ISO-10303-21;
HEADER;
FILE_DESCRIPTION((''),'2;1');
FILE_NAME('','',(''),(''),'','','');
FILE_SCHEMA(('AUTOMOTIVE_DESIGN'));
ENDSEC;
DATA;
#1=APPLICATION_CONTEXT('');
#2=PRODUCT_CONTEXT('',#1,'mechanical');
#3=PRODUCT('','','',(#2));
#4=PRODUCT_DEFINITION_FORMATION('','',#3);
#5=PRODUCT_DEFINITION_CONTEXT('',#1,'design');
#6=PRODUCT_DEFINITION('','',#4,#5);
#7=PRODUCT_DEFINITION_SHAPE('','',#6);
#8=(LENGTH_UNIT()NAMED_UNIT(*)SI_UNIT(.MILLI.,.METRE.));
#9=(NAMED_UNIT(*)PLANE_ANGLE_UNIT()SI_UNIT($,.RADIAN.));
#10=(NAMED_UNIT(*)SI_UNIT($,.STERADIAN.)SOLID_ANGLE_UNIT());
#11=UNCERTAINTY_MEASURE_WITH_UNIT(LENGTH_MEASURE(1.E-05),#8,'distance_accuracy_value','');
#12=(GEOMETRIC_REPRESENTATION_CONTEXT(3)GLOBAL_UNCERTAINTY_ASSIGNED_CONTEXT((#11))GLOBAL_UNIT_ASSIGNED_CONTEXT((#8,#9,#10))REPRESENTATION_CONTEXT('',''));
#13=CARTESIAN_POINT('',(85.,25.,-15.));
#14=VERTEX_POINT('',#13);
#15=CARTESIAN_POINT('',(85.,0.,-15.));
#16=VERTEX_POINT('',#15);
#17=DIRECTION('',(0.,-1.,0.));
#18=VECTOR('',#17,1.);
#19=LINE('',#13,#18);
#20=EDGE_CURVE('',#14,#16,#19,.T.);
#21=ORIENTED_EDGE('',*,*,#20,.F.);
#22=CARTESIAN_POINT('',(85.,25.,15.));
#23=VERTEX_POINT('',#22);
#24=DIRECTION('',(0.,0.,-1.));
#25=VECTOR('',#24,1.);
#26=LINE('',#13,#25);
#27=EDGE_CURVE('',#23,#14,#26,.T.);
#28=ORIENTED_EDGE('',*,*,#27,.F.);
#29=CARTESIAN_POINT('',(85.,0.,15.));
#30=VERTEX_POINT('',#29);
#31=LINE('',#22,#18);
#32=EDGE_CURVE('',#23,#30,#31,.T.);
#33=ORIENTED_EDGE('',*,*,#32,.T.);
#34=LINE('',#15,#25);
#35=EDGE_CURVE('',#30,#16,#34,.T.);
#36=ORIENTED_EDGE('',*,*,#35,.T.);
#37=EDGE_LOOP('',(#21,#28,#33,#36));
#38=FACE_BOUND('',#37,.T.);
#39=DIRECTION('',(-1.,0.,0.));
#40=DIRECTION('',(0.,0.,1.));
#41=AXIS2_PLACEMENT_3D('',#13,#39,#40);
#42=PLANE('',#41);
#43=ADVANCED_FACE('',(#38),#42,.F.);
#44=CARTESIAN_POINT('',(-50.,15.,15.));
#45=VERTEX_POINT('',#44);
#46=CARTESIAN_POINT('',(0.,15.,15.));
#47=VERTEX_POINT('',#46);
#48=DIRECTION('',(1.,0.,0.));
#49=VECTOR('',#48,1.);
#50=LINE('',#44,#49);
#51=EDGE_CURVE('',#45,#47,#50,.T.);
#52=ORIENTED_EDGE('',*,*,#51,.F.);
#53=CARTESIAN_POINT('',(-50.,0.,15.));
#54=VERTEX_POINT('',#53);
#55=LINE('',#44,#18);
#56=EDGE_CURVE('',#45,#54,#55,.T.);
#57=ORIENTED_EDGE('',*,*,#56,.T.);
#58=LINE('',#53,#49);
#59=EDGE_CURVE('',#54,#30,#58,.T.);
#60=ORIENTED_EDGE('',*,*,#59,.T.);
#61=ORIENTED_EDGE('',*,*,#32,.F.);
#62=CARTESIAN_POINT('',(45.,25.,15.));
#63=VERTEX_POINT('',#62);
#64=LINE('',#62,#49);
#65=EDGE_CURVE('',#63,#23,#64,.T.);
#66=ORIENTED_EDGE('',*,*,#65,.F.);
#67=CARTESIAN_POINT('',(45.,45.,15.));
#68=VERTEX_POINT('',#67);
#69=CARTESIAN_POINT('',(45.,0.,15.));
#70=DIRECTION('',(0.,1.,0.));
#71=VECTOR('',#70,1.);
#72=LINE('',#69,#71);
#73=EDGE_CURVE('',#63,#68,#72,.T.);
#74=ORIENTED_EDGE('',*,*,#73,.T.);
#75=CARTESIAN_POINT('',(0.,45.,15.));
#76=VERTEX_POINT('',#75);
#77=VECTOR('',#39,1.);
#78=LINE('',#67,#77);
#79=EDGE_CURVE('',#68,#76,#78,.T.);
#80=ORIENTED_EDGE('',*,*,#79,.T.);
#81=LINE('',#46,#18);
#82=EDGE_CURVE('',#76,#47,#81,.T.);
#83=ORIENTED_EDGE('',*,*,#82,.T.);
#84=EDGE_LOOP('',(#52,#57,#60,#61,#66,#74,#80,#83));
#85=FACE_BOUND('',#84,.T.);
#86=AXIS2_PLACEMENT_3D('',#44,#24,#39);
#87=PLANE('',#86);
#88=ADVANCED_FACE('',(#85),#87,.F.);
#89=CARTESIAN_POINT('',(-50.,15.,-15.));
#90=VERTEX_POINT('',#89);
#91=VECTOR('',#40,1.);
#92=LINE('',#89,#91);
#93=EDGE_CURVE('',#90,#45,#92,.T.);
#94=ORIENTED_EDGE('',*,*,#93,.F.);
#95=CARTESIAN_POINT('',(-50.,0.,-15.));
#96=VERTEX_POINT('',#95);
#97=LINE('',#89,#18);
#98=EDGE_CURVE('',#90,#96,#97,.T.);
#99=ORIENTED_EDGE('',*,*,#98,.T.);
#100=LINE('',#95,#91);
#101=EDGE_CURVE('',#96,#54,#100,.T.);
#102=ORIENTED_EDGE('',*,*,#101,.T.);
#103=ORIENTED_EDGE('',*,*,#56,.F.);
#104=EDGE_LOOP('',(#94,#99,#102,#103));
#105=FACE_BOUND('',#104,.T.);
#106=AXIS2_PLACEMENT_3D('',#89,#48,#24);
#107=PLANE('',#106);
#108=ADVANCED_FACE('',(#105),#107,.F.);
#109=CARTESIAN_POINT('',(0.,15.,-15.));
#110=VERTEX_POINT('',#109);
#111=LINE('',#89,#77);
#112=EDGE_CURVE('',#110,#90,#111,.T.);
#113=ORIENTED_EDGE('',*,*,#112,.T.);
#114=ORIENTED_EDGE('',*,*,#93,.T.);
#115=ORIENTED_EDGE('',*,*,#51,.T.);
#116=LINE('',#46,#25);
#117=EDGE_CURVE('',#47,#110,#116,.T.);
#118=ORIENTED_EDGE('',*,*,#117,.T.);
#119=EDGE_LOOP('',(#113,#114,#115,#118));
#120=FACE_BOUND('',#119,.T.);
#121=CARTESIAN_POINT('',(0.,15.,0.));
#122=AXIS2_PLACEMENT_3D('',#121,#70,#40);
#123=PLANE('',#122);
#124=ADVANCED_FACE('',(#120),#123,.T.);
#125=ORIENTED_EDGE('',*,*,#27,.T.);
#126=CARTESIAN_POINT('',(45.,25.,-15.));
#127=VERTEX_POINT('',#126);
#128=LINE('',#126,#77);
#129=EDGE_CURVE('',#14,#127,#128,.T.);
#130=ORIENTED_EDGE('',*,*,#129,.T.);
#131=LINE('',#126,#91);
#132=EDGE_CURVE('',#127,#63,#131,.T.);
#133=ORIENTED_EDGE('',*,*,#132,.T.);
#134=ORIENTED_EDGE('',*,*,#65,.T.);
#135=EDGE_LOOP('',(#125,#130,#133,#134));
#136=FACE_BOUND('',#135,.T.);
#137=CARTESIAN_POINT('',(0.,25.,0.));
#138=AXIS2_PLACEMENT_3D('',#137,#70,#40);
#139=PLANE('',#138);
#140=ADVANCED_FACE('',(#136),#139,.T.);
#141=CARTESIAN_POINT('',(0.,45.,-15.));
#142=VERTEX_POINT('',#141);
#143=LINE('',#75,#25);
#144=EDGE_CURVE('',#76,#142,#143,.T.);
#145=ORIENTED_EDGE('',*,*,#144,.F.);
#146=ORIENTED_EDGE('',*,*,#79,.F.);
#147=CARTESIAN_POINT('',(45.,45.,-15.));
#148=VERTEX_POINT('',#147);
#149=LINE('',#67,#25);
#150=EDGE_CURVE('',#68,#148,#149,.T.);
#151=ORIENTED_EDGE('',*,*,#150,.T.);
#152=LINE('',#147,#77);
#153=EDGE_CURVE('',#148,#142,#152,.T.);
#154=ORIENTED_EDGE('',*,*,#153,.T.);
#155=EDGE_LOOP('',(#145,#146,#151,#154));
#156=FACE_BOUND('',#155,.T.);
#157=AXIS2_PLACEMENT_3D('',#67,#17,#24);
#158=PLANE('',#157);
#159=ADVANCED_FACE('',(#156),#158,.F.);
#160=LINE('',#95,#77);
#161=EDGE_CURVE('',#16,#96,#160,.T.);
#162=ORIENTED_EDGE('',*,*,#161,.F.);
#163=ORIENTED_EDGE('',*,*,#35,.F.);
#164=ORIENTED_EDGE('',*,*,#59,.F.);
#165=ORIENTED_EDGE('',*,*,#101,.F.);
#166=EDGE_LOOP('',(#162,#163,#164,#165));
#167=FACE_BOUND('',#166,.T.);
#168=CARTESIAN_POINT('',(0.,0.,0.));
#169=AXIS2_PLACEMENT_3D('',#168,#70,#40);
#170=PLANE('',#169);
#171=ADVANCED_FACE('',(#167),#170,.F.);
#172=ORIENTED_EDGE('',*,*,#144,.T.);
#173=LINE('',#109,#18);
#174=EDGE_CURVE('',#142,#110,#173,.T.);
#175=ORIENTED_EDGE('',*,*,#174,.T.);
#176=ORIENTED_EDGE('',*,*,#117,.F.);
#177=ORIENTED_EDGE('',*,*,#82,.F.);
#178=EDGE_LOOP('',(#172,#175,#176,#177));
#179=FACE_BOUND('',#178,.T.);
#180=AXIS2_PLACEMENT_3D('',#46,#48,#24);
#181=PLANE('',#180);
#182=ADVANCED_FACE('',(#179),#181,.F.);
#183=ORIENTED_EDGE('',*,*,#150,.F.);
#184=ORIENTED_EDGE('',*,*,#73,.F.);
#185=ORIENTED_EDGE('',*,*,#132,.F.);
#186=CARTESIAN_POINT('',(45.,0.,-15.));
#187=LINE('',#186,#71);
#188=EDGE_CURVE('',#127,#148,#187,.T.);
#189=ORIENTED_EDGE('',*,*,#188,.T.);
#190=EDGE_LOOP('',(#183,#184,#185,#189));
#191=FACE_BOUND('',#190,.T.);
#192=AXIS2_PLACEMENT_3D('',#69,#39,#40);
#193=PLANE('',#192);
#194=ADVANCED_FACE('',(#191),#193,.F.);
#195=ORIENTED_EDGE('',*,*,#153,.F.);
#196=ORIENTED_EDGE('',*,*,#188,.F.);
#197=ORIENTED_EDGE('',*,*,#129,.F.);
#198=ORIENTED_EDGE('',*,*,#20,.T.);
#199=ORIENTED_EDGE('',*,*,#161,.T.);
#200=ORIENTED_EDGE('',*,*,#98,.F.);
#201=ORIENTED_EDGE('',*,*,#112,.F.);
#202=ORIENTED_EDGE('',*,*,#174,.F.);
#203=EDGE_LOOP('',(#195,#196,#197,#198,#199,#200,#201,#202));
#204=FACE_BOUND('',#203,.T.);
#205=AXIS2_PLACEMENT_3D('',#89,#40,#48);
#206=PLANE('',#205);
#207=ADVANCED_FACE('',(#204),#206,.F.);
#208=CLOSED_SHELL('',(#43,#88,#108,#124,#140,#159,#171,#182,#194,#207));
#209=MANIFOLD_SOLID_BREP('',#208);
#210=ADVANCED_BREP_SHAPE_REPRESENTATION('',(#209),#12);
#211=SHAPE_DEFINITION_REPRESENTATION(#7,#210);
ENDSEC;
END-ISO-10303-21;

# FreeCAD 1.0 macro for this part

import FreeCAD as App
import Part
import Sketcher

V = App.Vector
Q = App.Units.Quantity


def add_polygon(sketch, points):
    """Adds a closed chain of lines whose ends are joined by coincident constraints."""
    first, n = sketch.GeometryCount, len(points)
    for a, b in zip(points, points[1:] + points[:1]):
        sketch.addGeometry(Part.LineSegment(App.Vector(*a, 0), App.Vector(*b, 0)), False)
    for i in range(n):
        sketch.addConstraint(Sketcher.Constraint("Coincident", first + i, 2, first + (i + 1) % n, 1))

doc = App.newDocument("Part")
body = doc.addObject("PartDesign::Body", "Body")

# Sketch on XZ plane
sketch1 = body.newObject("Sketcher::SketchObject", "Sketch")
sketch1.AttachmentSupport = (doc.getObject("XZ_Plane"), [""])
sketch1.MapMode = "FlatFace"
add_polygon(sketch1, [(-50, -15), (-50, 15), (0, 15), (0, -15)])  # lines 0-3
sketch1.addConstraint([
    Sketcher.Constraint("Vertical", 0),
    Sketcher.Constraint("Horizontal", 1),
    Sketcher.Constraint("Vertical", 2),
    Sketcher.Constraint("Horizontal", 3),
    Sketcher.Constraint("Symmetric", 1, 2, 2, 2, -1, 1),
    Sketcher.Constraint("DistanceX", 1, 1, 1, 2, Q("50 mm")),
    Sketcher.Constraint("DistanceY", 0, 1, 0, 2, Q("30 mm")),
])
pad1 = body.newObject("PartDesign::Pad", "Pad")
pad1.Profile = sketch1
pad1.Length = 15
pad1.Reversed = True

# Sketch on XY plane
sketch2 = body.newObject("Sketcher::SketchObject", "Sketch001")
sketch2.AttachmentSupport = (doc.getObject("XY_Plane"), [""])
sketch2.MapMode = "FlatFace"
add_polygon(sketch2, [(0, 15), (0, 0), (45, 0), (45, 15)])  # lines 0-3
sketch2.addConstraint([
    Sketcher.Constraint("Vertical", 0),
    Sketcher.Constraint("Horizontal", 1),
    Sketcher.Constraint("Vertical", 2),
    Sketcher.Constraint("Horizontal", 3),
    Sketcher.Constraint("Coincident", 0, 2, -1, 1),
    Sketcher.Constraint("DistanceX", 1, 1, 1, 2, Q("45 mm")),
    Sketcher.Constraint("DistanceY", 0, 2, 0, 1, Q("15 mm")),
])
pad2 = body.newObject("PartDesign::Pad", "Pad001")
pad2.Profile = sketch2
pad2.Length = 30
pad2.Midplane = True

# Sketch on XY plane
sketch3 = body.newObject("Sketcher::SketchObject", "Sketch002")
sketch3.AttachmentSupport = (doc.getObject("XY_Plane"), [""])
sketch3.MapMode = "FlatFace"
add_polygon(sketch3, [(0, 45), (0, 15), (45, 15), (45, 45)])  # lines 0-3
sketch3.addConstraint([
    Sketcher.Constraint("Vertical", 0),
    Sketcher.Constraint("Horizontal", 1),
    Sketcher.Constraint("Vertical", 2),
    Sketcher.Constraint("Horizontal", 3),
    Sketcher.Constraint("PointOnObject", 0, 2, -2),
    Sketcher.Constraint("DistanceX", 1, 1, 1, 2, Q("45 mm")),
    Sketcher.Constraint("DistanceY", 0, 2, 0, 1, Q("30 mm")),
    Sketcher.Constraint("DistanceY", -1, 1, 0, 2, Q("15 mm")),
])
pad3 = body.newObject("PartDesign::Pad", "Pad002")
pad3.Profile = sketch3
pad3.Length = 30
pad3.Midplane = True

# Sketch on XZ plane
sketch4 = body.newObject("Sketcher::SketchObject", "Sketch003")
sketch4.AttachmentSupport = (doc.getObject("XZ_Plane"), [""])
sketch4.MapMode = "FlatFace"
add_polygon(sketch4, [(45, -15), (45, 15), (85, 15), (85, -15)])  # lines 0-3
sketch4.addConstraint([
    Sketcher.Constraint("Vertical", 0),
    Sketcher.Constraint("Horizontal", 1),
    Sketcher.Constraint("Vertical", 2),
    Sketcher.Constraint("Horizontal", 3),
    Sketcher.Constraint("DistanceX", 1, 1, 1, 2, Q("40 mm")),
    Sketcher.Constraint("DistanceY", 0, 1, 0, 2, Q("30 mm")),
    Sketcher.Constraint("DistanceX", -1, 1, 0, 2, Q("45 mm")),
    Sketcher.Constraint("DistanceY", -1, 1, 0, 2, Q("15 mm")),
])
pad4 = body.newObject("PartDesign::Pad", "Pad003")
pad4.Profile = sketch4
pad4.Length = 25
pad4.Reversed = True

doc.recompute()
